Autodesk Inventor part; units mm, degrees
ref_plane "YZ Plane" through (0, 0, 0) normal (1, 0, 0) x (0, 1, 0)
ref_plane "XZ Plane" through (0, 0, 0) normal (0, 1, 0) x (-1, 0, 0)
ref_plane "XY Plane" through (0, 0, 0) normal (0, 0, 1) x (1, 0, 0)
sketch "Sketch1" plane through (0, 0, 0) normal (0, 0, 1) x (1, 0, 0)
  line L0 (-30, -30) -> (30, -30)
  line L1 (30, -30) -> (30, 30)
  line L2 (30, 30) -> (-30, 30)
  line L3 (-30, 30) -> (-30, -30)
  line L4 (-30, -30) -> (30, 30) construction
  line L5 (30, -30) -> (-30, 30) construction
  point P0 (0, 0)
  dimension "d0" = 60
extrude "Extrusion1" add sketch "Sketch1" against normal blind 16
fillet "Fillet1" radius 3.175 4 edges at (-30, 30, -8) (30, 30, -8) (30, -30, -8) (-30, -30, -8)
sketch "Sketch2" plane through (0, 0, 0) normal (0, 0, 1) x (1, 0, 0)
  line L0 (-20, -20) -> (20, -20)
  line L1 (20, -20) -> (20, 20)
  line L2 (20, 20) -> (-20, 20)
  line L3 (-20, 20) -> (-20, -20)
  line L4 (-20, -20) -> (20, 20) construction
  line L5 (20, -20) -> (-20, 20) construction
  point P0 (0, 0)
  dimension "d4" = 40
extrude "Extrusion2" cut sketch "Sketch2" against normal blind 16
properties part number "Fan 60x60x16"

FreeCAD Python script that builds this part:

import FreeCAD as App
import Part
import Sketcher

V = App.Vector
Q = App.Units.Quantity


def edges_at(feature, points):
    """Names of the edges that pass closest to the given points."""
    edges = feature.Shape.Edges
    near = lambda p: min(range(len(edges)), key=lambda i: edges[i].distToShape(Part.Vertex(*p))[0])
    return sorted({f"Edge{near(p) + 1}" for p in points})


def add_polygon(sketch, points):
    """Adds a closed chain of lines whose ends are joined by coincident constraints."""
    first, n = sketch.GeometryCount, len(points)
    for a, b in zip(points, points[1:] + points[:1]):
        sketch.addGeometry(Part.LineSegment(App.Vector(*a, 0), App.Vector(*b, 0)), False)
    for i in range(n):
        sketch.addConstraint(Sketcher.Constraint("Coincident", first + i, 2, first + (i + 1) % n, 1))

doc = App.newDocument("Part")
body = doc.addObject("PartDesign::Body", "Body")

# Sketch on XY plane
sketch1 = doc.addObject("Sketcher::SketchObject", "Sketch")
body.addObject(sketch1)
sketch1.AttachmentSupport = (doc.XY_Plane, [""])
sketch1.MapMode = "FlatFace"
add_polygon(sketch1, [(-30, 30), (-30, -30), (30, -30), (30, 30)])  # lines 0-3
sketch1.addConstraint([
    Sketcher.Constraint("Vertical", 0),
    Sketcher.Constraint("Horizontal", 1),
    Sketcher.Constraint("Vertical", 2),
    Sketcher.Constraint("Horizontal", 3),
    Sketcher.Constraint("Symmetric", 0, 2, 2, 2, -1, 1),
    Sketcher.Constraint("Equal", 3, 0),
    Sketcher.Constraint("DistanceX", 1, 1, 1, 2, Q("60 mm")),
])
pad1 = doc.addObject("PartDesign::Pad", "Pad")
body.addObject(pad1)
pad1.Profile = sketch1
pad1.Length = 16
pad1.Reversed = True
doc.recompute()

fillet = doc.addObject("PartDesign::Fillet", "Fillet")
body.addObject(fillet)
fillet.Base = (pad1, edges_at(pad1, [
    (-30, 30, -8),
    (30, 30, -8),
    (30, -30, -8),
    (-30, -30, -8),
]))
fillet.Radius = 3.175

# Sketch on XY plane
sketch2 = doc.addObject("Sketcher::SketchObject", "Sketch001")
body.addObject(sketch2)
sketch2.AttachmentSupport = (doc.XY_Plane, [""])
sketch2.MapMode = "FlatFace"
add_polygon(sketch2, [(-20, 20), (-20, -20), (20, -20), (20, 20)])  # lines 0-3
sketch2.addConstraint([
    Sketcher.Constraint("Vertical", 0),
    Sketcher.Constraint("Horizontal", 1),
    Sketcher.Constraint("Vertical", 2),
    Sketcher.Constraint("Horizontal", 3),
    Sketcher.Constraint("Symmetric", 0, 2, 2, 2, -1, 1),
    Sketcher.Constraint("Equal", 3, 0),
    Sketcher.Constraint("DistanceX", 1, 1, 1, 2, Q("40 mm")),
])
pocket1 = doc.addObject("PartDesign::Pocket", "Pocket")
body.addObject(pocket1)
pocket1.Profile = sketch2
pocket1.Length = 16

doc.recompute()
